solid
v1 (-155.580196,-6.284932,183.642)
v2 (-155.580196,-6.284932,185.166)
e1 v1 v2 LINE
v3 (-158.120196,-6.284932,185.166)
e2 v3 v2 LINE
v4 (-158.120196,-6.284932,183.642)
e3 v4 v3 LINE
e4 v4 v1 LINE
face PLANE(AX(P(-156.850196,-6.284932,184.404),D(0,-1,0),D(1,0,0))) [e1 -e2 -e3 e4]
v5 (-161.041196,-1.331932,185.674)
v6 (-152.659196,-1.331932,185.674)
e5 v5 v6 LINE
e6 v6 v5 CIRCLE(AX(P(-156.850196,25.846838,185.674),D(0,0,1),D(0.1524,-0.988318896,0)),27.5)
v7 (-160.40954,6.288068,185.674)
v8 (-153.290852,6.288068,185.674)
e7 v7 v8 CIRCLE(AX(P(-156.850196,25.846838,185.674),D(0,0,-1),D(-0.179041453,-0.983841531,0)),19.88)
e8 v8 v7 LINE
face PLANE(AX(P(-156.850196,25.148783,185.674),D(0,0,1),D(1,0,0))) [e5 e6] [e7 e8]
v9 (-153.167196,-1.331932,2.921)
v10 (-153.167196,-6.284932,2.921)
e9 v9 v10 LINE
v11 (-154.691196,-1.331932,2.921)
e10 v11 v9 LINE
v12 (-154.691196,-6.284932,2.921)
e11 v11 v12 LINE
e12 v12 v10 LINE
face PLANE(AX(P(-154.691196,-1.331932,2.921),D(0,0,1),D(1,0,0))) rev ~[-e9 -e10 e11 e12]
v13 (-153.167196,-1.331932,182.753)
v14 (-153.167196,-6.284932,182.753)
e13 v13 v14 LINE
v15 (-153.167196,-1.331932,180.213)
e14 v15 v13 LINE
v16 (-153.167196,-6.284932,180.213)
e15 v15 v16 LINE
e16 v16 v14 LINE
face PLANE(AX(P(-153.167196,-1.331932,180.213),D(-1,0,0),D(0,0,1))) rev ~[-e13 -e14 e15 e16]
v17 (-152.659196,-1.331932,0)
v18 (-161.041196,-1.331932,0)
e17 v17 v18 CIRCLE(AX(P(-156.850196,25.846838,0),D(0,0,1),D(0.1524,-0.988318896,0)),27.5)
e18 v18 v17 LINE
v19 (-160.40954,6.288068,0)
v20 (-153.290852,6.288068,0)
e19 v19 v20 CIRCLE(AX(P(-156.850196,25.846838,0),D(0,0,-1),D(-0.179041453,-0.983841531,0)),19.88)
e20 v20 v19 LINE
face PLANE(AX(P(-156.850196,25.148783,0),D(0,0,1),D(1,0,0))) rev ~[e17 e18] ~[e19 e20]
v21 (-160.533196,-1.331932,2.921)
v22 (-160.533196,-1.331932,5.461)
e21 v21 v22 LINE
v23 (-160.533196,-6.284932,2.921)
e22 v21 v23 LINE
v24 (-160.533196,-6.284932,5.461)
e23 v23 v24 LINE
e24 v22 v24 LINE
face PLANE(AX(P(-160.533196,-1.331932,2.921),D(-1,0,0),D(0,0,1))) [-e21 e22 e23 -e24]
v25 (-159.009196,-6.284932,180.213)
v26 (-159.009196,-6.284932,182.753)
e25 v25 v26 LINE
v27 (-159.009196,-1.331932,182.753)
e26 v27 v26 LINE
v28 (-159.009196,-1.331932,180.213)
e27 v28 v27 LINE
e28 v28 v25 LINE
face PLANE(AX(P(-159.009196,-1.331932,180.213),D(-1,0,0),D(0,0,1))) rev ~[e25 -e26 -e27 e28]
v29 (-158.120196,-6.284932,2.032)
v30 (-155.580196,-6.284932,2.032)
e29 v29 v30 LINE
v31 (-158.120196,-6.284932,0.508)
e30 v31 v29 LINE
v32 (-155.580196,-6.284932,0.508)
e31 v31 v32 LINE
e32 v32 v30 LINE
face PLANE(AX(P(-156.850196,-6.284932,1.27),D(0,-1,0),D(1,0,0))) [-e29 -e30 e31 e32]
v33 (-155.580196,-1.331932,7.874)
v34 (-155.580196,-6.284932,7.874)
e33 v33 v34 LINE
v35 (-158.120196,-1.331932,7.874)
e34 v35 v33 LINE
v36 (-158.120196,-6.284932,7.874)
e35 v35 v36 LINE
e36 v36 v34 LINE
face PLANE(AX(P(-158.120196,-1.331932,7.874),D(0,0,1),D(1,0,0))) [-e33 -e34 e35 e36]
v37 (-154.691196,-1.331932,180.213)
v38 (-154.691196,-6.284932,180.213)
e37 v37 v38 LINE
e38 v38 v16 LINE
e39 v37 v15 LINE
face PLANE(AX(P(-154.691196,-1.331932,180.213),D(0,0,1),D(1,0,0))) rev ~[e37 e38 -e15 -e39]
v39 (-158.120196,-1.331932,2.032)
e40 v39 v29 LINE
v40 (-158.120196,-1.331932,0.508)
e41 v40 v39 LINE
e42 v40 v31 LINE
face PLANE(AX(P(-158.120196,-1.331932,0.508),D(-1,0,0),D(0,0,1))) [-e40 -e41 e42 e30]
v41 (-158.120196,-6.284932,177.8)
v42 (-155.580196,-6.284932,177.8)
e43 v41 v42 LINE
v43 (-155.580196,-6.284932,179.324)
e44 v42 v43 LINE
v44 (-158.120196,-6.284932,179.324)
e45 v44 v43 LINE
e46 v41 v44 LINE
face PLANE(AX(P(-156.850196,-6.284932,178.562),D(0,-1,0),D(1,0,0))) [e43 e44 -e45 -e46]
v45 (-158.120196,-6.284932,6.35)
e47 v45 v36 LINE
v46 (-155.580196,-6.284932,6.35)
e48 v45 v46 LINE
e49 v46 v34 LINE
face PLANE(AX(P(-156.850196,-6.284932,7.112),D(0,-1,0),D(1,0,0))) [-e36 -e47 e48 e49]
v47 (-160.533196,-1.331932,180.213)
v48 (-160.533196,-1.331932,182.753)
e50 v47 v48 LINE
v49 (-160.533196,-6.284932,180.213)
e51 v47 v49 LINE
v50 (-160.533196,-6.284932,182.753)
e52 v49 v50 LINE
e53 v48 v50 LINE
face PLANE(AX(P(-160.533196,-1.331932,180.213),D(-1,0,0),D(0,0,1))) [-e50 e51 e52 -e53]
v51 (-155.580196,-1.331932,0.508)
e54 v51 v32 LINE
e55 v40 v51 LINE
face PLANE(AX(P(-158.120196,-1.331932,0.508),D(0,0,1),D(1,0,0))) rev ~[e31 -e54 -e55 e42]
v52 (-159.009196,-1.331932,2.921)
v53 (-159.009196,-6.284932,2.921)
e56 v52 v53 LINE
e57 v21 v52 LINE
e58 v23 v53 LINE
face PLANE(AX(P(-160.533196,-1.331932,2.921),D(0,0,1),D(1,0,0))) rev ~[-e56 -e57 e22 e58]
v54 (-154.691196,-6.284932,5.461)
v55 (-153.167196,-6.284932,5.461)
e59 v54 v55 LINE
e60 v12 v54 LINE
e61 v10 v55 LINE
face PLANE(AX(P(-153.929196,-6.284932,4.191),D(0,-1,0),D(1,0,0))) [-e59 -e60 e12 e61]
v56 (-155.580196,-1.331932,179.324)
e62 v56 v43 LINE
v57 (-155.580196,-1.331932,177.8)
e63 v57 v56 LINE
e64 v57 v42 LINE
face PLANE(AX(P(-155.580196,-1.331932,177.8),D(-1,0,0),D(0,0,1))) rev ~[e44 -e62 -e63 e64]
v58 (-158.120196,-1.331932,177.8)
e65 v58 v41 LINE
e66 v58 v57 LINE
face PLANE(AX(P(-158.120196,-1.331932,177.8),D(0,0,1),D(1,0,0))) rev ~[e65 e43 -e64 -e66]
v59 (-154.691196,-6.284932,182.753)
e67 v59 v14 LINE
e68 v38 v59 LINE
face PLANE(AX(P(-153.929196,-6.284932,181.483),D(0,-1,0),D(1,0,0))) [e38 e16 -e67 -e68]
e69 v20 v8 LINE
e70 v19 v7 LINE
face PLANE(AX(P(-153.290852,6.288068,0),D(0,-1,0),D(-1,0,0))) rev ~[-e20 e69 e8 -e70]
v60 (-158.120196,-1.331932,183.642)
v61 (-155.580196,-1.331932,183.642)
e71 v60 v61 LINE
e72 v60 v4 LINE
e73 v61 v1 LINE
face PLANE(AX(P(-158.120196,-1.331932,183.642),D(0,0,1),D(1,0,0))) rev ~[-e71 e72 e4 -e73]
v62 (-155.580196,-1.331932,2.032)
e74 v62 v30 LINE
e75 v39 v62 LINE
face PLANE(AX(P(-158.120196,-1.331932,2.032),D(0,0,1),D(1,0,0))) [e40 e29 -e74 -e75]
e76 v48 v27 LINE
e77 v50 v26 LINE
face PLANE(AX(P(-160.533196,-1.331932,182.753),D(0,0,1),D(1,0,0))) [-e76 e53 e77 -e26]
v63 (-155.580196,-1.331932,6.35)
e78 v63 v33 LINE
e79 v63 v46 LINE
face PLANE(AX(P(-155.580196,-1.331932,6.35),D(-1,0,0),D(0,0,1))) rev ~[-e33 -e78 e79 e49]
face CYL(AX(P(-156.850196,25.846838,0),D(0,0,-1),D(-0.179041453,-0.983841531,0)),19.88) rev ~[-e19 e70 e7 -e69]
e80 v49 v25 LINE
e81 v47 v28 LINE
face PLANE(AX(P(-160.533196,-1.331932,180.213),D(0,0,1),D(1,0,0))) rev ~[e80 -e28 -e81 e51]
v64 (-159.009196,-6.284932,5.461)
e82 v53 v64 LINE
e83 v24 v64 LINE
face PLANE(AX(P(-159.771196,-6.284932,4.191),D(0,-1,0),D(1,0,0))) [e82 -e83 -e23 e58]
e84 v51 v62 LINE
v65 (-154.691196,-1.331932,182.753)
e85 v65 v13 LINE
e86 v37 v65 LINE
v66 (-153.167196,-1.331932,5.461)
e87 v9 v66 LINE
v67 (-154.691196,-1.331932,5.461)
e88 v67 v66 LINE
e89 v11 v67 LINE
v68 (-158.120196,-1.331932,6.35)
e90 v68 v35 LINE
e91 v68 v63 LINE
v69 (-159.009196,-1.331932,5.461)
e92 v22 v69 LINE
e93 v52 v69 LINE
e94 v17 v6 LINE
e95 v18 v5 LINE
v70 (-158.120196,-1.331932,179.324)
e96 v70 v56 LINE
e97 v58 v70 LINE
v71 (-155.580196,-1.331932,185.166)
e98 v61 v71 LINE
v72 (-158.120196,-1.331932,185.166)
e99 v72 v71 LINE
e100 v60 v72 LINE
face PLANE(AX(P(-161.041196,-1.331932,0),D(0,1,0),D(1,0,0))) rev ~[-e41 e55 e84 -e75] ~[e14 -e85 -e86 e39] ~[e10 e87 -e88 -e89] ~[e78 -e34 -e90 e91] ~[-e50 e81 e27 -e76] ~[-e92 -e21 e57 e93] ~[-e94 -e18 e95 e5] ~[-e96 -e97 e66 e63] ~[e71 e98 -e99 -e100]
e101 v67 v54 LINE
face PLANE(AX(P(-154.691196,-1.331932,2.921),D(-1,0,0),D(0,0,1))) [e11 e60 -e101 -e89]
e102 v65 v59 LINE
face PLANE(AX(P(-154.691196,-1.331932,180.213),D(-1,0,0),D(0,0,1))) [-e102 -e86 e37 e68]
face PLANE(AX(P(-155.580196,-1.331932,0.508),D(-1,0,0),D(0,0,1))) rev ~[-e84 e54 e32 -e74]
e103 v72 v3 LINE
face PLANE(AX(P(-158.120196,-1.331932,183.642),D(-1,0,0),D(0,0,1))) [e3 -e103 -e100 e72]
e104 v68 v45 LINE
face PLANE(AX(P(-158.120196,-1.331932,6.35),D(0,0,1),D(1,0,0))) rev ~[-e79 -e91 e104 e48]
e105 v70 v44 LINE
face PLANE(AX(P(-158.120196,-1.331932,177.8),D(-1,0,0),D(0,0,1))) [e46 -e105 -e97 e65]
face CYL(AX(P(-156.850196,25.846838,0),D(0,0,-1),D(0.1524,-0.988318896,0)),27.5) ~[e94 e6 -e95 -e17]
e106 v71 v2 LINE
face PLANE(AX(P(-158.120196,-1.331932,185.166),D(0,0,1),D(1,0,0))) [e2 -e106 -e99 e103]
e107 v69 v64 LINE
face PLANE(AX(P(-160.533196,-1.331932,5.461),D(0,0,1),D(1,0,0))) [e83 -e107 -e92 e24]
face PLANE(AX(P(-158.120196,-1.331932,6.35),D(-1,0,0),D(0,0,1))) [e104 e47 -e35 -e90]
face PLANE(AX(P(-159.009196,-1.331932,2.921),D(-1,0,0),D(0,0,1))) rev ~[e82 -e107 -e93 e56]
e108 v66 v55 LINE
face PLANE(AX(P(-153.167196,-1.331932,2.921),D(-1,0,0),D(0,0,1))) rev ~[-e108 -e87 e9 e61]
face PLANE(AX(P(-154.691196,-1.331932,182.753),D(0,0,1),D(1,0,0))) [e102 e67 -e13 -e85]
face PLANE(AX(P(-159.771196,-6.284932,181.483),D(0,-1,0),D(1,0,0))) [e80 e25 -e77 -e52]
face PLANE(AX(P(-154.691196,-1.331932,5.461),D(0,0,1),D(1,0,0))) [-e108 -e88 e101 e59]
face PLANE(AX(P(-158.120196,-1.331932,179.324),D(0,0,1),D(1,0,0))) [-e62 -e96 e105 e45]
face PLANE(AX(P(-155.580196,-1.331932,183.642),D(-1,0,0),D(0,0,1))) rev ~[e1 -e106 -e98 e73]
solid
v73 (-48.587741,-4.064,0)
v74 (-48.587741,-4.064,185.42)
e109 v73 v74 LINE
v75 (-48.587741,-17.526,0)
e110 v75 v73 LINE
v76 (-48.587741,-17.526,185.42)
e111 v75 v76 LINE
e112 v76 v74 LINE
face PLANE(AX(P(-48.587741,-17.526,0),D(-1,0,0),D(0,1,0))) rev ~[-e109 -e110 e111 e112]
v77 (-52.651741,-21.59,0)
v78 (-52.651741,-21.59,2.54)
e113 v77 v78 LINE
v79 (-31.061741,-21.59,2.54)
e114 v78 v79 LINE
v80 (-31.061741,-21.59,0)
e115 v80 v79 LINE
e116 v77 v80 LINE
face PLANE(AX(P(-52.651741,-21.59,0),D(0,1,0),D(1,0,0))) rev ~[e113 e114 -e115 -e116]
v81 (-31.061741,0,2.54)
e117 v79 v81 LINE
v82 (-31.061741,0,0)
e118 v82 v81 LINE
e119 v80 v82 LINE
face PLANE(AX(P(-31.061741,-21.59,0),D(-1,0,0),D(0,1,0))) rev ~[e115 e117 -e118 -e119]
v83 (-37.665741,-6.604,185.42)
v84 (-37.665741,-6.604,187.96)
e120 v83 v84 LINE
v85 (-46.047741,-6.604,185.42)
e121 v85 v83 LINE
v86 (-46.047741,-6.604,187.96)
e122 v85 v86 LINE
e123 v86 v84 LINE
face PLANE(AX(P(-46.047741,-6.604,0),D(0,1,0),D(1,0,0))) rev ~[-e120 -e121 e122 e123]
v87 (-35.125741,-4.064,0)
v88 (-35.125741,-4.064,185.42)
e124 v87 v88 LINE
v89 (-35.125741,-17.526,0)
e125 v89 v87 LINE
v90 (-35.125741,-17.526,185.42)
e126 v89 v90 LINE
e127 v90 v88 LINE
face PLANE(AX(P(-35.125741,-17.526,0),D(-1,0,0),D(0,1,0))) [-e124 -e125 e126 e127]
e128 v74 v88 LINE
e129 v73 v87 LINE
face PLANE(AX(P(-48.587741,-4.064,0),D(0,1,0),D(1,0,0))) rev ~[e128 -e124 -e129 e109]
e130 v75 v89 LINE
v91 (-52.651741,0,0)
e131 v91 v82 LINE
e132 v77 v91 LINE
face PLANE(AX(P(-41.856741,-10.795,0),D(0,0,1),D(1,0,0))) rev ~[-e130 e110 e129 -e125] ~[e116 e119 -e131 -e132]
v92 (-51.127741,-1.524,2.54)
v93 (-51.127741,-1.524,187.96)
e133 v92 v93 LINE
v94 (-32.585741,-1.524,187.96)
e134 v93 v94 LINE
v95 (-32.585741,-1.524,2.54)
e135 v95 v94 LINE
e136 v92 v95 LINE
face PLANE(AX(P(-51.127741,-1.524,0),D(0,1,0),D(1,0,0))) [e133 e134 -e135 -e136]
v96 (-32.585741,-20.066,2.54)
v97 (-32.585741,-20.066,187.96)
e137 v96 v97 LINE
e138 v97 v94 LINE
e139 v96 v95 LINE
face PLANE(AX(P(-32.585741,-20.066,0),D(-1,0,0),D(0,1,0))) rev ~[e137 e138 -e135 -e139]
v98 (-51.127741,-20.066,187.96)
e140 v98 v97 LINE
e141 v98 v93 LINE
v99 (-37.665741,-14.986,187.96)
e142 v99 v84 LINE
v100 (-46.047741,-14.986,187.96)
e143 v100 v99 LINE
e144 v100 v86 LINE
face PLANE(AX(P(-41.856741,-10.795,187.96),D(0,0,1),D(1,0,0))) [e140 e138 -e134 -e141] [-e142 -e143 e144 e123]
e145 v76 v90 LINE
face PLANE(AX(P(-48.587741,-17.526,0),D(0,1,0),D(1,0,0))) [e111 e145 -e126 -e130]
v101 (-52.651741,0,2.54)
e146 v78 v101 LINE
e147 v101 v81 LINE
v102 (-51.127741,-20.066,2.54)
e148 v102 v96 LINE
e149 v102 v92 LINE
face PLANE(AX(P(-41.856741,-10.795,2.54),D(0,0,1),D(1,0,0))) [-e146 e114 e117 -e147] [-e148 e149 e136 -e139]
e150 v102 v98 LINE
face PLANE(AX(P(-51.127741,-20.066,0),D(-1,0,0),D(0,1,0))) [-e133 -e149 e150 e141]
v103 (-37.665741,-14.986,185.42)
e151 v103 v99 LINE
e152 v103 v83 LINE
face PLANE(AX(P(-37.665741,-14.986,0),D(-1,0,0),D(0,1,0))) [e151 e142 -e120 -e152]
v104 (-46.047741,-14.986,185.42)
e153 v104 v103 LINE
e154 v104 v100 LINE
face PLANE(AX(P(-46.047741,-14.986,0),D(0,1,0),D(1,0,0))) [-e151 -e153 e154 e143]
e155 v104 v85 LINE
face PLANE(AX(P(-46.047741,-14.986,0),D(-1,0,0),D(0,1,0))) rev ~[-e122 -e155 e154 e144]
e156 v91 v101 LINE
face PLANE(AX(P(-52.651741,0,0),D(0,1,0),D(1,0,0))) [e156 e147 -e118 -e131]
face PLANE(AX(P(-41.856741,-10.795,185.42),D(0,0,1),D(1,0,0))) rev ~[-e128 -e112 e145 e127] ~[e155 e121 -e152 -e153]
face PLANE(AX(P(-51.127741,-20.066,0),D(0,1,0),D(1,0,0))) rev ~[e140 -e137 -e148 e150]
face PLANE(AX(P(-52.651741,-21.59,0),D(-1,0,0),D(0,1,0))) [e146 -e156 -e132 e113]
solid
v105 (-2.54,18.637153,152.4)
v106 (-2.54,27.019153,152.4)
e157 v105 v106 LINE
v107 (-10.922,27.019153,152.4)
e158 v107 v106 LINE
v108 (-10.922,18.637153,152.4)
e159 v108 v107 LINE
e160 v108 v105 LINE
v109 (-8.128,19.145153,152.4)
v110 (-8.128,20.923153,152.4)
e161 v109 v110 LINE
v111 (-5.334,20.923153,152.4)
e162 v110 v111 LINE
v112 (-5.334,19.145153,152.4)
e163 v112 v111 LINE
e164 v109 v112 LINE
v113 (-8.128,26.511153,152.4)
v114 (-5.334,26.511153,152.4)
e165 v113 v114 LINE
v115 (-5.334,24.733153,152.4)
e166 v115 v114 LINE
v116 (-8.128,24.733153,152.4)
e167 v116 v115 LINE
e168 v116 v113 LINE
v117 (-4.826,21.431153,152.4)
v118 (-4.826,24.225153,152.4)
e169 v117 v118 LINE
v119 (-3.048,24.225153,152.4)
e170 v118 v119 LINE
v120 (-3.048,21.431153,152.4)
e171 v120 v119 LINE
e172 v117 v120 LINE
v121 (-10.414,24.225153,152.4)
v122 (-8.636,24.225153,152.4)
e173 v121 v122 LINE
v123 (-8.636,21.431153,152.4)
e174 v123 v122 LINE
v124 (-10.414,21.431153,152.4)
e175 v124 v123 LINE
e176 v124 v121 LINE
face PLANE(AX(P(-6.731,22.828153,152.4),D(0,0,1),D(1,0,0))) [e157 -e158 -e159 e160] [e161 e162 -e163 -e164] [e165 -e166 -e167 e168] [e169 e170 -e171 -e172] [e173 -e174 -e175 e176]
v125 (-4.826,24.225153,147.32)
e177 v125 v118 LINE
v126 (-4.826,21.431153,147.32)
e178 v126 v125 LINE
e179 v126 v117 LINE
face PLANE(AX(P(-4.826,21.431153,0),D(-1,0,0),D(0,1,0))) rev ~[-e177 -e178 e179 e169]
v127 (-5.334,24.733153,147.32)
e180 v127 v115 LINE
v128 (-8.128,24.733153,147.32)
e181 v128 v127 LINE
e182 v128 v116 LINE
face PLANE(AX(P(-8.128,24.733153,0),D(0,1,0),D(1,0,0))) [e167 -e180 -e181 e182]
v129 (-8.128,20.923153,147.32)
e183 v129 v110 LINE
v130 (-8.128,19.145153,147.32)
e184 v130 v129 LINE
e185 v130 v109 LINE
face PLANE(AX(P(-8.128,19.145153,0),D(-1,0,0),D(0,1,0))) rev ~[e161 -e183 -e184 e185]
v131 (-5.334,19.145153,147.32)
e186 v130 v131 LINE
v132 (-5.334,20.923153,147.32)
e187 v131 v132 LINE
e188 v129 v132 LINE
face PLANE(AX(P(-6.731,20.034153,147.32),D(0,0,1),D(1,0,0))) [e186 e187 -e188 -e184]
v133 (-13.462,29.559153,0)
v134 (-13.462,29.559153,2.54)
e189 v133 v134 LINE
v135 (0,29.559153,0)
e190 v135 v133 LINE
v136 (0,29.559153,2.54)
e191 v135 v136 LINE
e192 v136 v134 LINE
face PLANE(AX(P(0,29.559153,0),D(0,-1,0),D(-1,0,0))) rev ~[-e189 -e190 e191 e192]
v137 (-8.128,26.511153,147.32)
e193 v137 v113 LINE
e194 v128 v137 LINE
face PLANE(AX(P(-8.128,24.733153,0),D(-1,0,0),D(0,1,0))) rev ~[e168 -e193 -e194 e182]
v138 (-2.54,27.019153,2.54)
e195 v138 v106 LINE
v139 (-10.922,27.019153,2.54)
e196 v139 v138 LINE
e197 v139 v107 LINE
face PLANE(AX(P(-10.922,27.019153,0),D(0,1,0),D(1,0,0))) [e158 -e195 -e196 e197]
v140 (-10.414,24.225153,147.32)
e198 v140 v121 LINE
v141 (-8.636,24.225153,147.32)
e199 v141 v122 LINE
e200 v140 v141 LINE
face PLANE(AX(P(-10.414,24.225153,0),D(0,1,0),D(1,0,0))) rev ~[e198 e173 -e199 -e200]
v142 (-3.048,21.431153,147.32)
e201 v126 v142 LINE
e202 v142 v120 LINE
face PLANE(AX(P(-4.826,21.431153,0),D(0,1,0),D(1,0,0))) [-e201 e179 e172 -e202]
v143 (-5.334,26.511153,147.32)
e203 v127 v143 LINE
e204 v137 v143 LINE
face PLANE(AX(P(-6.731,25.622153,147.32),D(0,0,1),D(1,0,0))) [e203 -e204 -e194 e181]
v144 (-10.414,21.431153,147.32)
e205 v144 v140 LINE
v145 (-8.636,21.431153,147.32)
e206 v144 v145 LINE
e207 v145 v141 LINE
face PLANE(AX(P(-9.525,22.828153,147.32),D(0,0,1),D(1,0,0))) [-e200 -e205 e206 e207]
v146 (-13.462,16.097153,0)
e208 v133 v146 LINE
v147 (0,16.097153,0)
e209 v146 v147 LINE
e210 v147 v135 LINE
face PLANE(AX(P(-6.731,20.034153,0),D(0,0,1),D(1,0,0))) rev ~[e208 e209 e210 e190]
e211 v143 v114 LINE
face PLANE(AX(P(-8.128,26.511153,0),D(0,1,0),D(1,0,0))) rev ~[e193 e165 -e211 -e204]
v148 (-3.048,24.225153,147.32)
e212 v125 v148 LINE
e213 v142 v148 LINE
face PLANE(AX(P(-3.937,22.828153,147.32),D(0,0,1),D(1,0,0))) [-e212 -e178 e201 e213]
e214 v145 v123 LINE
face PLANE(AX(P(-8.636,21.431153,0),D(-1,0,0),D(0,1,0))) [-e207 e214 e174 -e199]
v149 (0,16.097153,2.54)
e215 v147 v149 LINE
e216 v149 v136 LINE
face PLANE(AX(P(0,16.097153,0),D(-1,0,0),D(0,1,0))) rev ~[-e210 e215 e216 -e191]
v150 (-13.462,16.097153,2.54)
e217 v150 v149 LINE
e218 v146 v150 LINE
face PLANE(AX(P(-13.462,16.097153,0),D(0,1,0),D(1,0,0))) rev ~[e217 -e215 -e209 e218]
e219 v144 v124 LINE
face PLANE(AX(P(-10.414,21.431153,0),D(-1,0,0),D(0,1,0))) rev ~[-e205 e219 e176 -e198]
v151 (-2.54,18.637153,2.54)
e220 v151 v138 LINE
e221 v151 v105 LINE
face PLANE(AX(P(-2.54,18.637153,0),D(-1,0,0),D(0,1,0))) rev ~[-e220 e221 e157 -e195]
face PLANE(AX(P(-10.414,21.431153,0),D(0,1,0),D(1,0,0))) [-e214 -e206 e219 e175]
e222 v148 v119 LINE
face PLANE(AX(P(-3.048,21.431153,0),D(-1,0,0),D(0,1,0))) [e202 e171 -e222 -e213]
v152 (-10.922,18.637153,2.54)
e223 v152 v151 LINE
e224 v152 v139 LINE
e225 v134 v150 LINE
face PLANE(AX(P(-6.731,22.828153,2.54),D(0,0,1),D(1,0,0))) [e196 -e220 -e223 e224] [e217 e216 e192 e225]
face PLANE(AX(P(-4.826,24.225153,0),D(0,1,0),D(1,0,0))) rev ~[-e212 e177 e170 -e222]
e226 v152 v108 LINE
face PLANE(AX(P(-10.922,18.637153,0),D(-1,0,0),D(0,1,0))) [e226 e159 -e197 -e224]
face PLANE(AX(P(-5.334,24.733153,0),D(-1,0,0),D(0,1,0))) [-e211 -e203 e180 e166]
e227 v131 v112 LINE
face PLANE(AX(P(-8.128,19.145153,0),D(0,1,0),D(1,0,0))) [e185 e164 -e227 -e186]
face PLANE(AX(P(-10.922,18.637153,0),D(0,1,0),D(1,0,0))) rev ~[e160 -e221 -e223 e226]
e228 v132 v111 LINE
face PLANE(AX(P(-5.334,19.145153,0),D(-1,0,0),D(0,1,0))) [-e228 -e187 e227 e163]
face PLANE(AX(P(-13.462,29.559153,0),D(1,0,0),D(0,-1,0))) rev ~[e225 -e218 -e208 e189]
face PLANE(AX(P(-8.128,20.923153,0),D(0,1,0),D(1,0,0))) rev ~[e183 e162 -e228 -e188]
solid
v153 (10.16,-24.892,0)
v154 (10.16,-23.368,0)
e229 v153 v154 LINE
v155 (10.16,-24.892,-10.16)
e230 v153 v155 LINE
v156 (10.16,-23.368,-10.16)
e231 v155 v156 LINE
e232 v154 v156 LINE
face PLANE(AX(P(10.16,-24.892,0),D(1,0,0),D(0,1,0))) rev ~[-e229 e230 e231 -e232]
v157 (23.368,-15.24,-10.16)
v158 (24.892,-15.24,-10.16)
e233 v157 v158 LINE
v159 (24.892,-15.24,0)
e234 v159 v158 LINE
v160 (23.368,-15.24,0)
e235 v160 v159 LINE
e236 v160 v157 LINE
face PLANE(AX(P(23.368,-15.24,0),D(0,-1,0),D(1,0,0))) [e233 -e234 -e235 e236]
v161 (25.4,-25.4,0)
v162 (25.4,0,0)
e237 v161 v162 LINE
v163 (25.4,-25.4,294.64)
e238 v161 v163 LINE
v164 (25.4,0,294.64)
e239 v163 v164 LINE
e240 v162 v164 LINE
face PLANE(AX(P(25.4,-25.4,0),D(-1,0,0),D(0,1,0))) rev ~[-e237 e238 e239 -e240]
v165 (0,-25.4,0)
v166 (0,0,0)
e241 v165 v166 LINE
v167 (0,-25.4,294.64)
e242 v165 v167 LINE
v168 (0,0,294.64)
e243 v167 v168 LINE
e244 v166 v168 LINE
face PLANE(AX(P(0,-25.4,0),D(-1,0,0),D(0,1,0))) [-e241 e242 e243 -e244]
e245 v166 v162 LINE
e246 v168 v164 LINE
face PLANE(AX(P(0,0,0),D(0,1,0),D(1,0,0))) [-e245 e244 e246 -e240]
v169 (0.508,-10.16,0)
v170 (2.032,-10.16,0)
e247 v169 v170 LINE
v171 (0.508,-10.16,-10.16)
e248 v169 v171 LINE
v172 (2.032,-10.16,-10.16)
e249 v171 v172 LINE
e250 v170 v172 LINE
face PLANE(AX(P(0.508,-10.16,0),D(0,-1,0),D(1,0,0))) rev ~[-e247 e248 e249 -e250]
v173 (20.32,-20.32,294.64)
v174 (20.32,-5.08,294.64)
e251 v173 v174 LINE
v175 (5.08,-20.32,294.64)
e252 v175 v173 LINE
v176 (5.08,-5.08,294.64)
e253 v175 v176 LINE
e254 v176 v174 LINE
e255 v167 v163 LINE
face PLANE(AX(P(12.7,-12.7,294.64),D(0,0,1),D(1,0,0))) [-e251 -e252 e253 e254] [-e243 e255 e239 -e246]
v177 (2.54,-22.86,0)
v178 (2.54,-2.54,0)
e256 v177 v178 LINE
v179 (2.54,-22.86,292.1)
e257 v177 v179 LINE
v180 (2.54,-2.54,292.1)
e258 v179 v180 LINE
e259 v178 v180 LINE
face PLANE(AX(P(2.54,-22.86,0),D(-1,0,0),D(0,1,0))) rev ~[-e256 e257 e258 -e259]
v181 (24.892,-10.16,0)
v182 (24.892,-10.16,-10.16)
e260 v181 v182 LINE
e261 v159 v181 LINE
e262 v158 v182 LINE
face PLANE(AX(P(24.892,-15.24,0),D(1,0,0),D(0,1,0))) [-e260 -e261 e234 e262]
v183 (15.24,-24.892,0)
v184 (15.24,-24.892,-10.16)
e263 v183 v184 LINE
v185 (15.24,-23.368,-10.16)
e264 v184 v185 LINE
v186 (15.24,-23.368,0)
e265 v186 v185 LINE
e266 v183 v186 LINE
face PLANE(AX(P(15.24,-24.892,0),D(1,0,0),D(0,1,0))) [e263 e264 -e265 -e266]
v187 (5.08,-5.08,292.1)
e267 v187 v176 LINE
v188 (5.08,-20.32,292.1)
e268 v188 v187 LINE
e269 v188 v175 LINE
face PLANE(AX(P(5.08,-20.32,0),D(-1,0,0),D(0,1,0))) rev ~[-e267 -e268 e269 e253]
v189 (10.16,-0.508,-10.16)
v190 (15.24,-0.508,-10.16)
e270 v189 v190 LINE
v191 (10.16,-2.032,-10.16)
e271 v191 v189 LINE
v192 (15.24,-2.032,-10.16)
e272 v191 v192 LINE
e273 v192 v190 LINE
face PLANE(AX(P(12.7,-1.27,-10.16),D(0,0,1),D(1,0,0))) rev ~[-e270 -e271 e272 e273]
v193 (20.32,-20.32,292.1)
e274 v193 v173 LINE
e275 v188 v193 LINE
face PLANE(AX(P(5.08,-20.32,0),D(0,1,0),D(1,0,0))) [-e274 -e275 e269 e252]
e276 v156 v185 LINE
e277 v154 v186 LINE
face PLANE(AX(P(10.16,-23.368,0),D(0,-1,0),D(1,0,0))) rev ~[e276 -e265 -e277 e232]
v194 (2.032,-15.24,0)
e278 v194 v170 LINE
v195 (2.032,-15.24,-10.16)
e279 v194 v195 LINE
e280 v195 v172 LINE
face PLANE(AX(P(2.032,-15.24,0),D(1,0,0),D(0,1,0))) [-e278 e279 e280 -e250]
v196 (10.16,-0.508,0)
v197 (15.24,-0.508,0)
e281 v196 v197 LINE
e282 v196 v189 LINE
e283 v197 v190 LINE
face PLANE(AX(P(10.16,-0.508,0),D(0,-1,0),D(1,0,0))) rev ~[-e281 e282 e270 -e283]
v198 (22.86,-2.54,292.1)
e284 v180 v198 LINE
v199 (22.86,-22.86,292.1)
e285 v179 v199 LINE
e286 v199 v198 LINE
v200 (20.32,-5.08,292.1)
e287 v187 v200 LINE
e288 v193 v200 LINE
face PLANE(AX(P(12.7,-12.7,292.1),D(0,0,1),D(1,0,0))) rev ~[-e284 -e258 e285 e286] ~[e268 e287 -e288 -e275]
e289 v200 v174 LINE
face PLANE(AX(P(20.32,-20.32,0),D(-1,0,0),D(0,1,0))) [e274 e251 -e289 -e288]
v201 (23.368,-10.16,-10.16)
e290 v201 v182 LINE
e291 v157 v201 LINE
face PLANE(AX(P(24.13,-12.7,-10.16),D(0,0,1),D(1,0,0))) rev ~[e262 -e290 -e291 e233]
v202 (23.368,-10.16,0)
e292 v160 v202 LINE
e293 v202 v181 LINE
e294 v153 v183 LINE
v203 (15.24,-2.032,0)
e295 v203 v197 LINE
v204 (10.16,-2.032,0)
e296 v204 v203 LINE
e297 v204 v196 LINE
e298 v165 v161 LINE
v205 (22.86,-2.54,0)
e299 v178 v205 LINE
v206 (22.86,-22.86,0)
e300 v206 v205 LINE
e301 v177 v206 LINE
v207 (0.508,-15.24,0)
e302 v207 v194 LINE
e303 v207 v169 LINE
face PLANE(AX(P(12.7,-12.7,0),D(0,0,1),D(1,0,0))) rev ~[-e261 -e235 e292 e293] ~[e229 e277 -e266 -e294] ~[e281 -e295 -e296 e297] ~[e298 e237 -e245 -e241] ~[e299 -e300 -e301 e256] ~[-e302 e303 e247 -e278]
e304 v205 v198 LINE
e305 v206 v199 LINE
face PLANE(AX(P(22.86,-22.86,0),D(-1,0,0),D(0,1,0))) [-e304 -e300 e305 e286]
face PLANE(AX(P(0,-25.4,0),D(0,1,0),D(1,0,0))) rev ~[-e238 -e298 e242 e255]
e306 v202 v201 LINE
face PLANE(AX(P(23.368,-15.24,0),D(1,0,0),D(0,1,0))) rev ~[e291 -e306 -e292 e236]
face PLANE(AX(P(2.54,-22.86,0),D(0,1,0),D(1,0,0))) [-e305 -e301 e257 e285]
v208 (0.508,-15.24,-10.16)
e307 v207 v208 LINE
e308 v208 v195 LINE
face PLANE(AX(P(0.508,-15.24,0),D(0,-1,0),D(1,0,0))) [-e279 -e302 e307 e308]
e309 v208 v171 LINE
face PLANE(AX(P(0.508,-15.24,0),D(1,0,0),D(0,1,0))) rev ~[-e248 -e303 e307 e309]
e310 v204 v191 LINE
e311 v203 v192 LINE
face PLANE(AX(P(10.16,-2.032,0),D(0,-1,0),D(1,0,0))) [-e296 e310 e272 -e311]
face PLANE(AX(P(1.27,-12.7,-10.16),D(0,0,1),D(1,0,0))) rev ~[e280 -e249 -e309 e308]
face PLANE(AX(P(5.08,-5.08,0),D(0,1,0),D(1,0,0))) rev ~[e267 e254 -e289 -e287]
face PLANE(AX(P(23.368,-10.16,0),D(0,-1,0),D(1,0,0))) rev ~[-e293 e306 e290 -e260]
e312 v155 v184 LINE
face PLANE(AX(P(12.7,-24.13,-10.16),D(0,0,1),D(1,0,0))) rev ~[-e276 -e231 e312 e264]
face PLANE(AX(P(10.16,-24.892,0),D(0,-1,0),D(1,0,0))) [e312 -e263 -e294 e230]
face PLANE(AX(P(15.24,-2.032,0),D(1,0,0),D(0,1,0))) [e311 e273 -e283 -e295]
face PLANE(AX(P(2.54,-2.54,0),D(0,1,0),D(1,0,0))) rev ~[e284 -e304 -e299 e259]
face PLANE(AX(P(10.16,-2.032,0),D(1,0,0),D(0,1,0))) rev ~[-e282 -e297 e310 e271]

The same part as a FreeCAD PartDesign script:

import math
import FreeCAD as App
import Part
import Sketcher

V = App.Vector
Q = App.Units.Quantity


def add_polygon(sketch, points):
    """Adds a closed chain of lines whose ends are joined by coincident constraints."""
    first, n = sketch.GeometryCount, len(points)
    for a, b in zip(points, points[1:] + points[:1]):
        sketch.addGeometry(Part.LineSegment(App.Vector(*a, 0), App.Vector(*b, 0)), False)
    for i in range(n):
        sketch.addConstraint(Sketcher.Constraint("Coincident", first + i, 2, first + (i + 1) % n, 1))

doc = App.newDocument("Part")
body = doc.addObject("PartDesign::Body", "Body")

sketch1 = body.newObject("Sketcher::SketchObject", "Sketch")
sketch1.AttachmentSupport = (doc.getObject("XY_Plane"), [""])
sketch1.MapMode = "FlatFace"
add_polygon(sketch1, [(0, 0), (0, -25), (25, -25), (25, 0)])
add_polygon(sketch1, [(20, -20), (5, -20), (5, -5), (20, -5)])
sketch1.addConstraint([
    Sketcher.Constraint("Vertical", 0),
    Sketcher.Constraint("Horizontal", 1),
    Sketcher.Constraint("Vertical", 2),
    Sketcher.Constraint("Horizontal", 3),
    Sketcher.Constraint("Horizontal", 4),
    Sketcher.Constraint("Vertical", 5),
    Sketcher.Constraint("Horizontal", 6),
    Sketcher.Constraint("Vertical", 7),
    Sketcher.Constraint("Coincident", 3, 2, -1, 1),
    Sketcher.Constraint("Equal", 3, 0),
    Sketcher.Constraint("Equal", 6, 5),
    Sketcher.Constraint("DistanceX", 1, 1, 1, 2, Q("1 in")),
    Sketcher.Constraint("DistanceX", 4, 2, 4, 1, Q("0.6 in")),
    Sketcher.Constraint("DistanceX", -1, 1, 4, 2, Q("0.2 in")),
    Sketcher.Constraint("DistanceY", 4, 2, -1, 1, Q("0.8 in")),
])
pad1 = body.newObject("PartDesign::Pad", "Pad")
pad1.Profile = sketch1
pad1.Length = Q("11.6 in")

sketch2 = body.newObject("Sketcher::SketchObject", "Sketch001")
sketch2.AttachmentSupport = (doc.getObject("XY_Plane"), [""])
sketch2.MapMode = "FlatFace"
add_polygon(sketch2, [(3, -3), (3, -23), (23, -23), (23, -3)])
add_polygon(sketch2, [(20, -20), (5, -20), (5, -5), (20, -5)])
sketch2.addConstraint([
    Sketcher.Constraint("Vertical", 0),
    Sketcher.Constraint("Horizontal", 1),
    Sketcher.Constraint("Vertical", 2),
    Sketcher.Constraint("Horizontal", 3),
    Sketcher.Constraint("Horizontal", 4),
    Sketcher.Constraint("Vertical", 5),
    Sketcher.Constraint("Horizontal", 6),
    Sketcher.Constraint("Vertical", 7),
    Sketcher.Constraint("Equal", 3, 0),
    Sketcher.Constraint("Equal", 6, 5),
    Sketcher.Constraint("DistanceX", 1, 1, 1, 2, Q("0.8 in")),
    Sketcher.Constraint("DistanceX", 4, 2, 4, 1, Q("0.6 in")),
    Sketcher.Constraint("DistanceX", -1, 1, 0, 2, Q("0.1 in")),
    Sketcher.Constraint("DistanceY", 0, 2, -1, 1, Q("0.9 in")),
    Sketcher.Constraint("DistanceX", -1, 1, 4, 2, Q("0.2 in")),
    Sketcher.Constraint("DistanceY", 4, 2, -1, 1, Q("0.8 in")),
])
pocket1 = body.newObject("PartDesign::Pocket", "Pocket")
pocket1.Profile = sketch2
pocket1.Length = Q("11.5 in")
pocket1.Reversed = True

sketch3 = body.newObject("Sketcher::SketchObject", "Sketch002")
sketch3.AttachmentSupport = (doc.getObject("XY_Plane"), [""])
sketch3.MapMode = "FlatFace"
add_polygon(sketch3, [(0.5, -10.2), (0.5, -15.2), (2, -15.2), (2, -10.2)])
add_polygon(sketch3, [(10.2, -23.4), (10.2, -24.9), (15.2, -24.9), (15.2, -23.4)])
add_polygon(sketch3, [(10.2, -0.5), (10.2, -2), (15.2, -2), (15.2, -0.5)])
add_polygon(sketch3, [(23.4, -10.2), (23.4, -15.2), (24.9, -15.2), (24.9, -10.2)])
sketch3.addConstraint([
    Sketcher.Constraint("Vertical", 0),
    Sketcher.Constraint("Horizontal", 1),
    Sketcher.Constraint("Vertical", 2),
    Sketcher.Constraint("Horizontal", 3),
    Sketcher.Constraint("Vertical", 4),
    Sketcher.Constraint("Horizontal", 5),
    Sketcher.Constraint("Vertical", 6),
    Sketcher.Constraint("Horizontal", 7),
    Sketcher.Constraint("Vertical", 8),
    Sketcher.Constraint("Horizontal", 9),
    Sketcher.Constraint("Vertical", 10),
    Sketcher.Constraint("Horizontal", 11),
    Sketcher.Constraint("Vertical", 12),
    Sketcher.Constraint("Horizontal", 13),
    Sketcher.Constraint("Vertical", 14),
    Sketcher.Constraint("Horizontal", 15),
    Sketcher.Constraint("Horizontal", 1, 2, 12, 2),
    Sketcher.Constraint("Horizontal", 3, 2, 14, 2),
    Sketcher.Constraint("Vertical", 7, 2, 8, 2),
    Sketcher.Constraint("Vertical", 6, 2, 9, 2),
    Sketcher.Constraint("Equal", 3, 13),
    Sketcher.Constraint("Equal", 11, 0),
    Sketcher.Constraint("Equal", 15, 4),
    Sketcher.Constraint("Equal", 6, 8),
    Sketcher.Constraint("DistanceX", 5, 1, 5, 2, Q("0.2 in")),
    Sketcher.Constraint("DistanceX", 1, 1, 1, 2, Q("0.06 in")),
    Sketcher.Constraint("DistanceY", 0, 2, -1, 1, Q("0.6 in")),
    Sketcher.Constraint("DistanceX", -1, 1, 4, 2, Q("0.4 in")),
    Sketcher.Constraint("DistanceX", -1, 1, 0, 2, Q("0.02 in")),
    Sketcher.Constraint("DistanceY", 4, 2, -1, 1, Q("0.98 in")),
    Sketcher.Constraint("DistanceY", 8, 2, -1, 1, Q("0.08 in")),
    Sketcher.Constraint("DistanceX", -1, 1, 12, 2, Q("0.92 in")),
])
pad2 = body.newObject("PartDesign::Pad", "Pad001")
pad2.Profile = sketch3
pad2.Length = Q("0.4 in")
pad2.Reversed = True
body2 = doc.addObject("PartDesign::Body", "Body001")

sketch4 = body2.newObject("Sketcher::SketchObject", "Sketch003")
sketch4.AttachmentSupport = (doc.getObject("XY_Plane001"), [""])
sketch4.MapMode = "FlatFace"
add_polygon(sketch4, [(-51, -2), (-51, -20), (-33, -20), (-33, -2)])
add_polygon(sketch4, [(-38, -15), (-46, -15), (-46, -7), (-38, -7)])
sketch4.addConstraint([
    Sketcher.Constraint("Vertical", 0),
    Sketcher.Constraint("Horizontal", 1),
    Sketcher.Constraint("Vertical", 2),
    Sketcher.Constraint("Horizontal", 3),
    Sketcher.Constraint("Horizontal", 4),
    Sketcher.Constraint("Vertical", 5),
    Sketcher.Constraint("Horizontal", 6),
    Sketcher.Constraint("Vertical", 7),
    Sketcher.Constraint("Equal", 3, 0),
    Sketcher.Constraint("Equal", 6, 5),
    Sketcher.Constraint("DistanceX", 1, 1, 1, 2, Q("0.73 in")),
    Sketcher.Constraint("DistanceX", 4, 2, 4, 1, Q("0.33 in")),
    Sketcher.Constraint("DistanceX", 0, 2, 4, 2, Q("0.2 in")),
    Sketcher.Constraint("DistanceY", 0, 2, 4, 2, Q("0.2 in")),
    Sketcher.Constraint("DistanceY", 0, 2, -1, 1, Q("0.79 in")),
    Sketcher.Constraint("DistanceX", 0, 2, -1, 1, Q("51.127741 mm")),
])
pad3 = body2.newObject("PartDesign::Pad", "Pad002")
pad3.Profile = sketch4
pad3.Length = Q("7.4 in")

sketch5 = body2.newObject("Sketcher::SketchObject", "Sketch004")
sketch5.AttachmentSupport = (doc.getObject("XY_Plane001"), [""])
sketch5.MapMode = "FlatFace"
add_polygon(sketch5, [(-49, -4), (-49, -18), (-35, -18), (-35, -4)])
add_polygon(sketch5, [(-38, -15), (-46, -15), (-46, -7), (-38, -7)])
sketch5.addConstraint([
    Sketcher.Constraint("Vertical", 0),
    Sketcher.Constraint("Horizontal", 1),
    Sketcher.Constraint("Vertical", 2),
    Sketcher.Constraint("Horizontal", 3),
    Sketcher.Constraint("Horizontal", 4),
    Sketcher.Constraint("Vertical", 5),
    Sketcher.Constraint("Horizontal", 6),
    Sketcher.Constraint("Vertical", 7),
    Sketcher.Constraint("Equal", 3, 0),
    Sketcher.Constraint("Equal", 6, 5),
    Sketcher.Constraint("DistanceX", 1, 1, 1, 2, Q("0.53 in")),
    Sketcher.Constraint("DistanceX", 4, 2, 4, 1, Q("0.33 in")),
    Sketcher.Constraint("DistanceX", 0, 2, 4, 2, Q("0.1 in")),
    Sketcher.Constraint("DistanceY", 0, 2, 4, 2, Q("0.1 in")),
    Sketcher.Constraint("DistanceY", 0, 2, -1, 1, Q("0.69 in")),
    Sketcher.Constraint("DistanceX", 0, 2, -1, 1, Q("48.587741 mm")),
])
pocket2 = body2.newObject("PartDesign::Pocket", "Pocket001")
pocket2.Profile = sketch5
pocket2.Length = Q("7.3 in")
pocket2.Reversed = True

sketch6 = body2.newObject("Sketcher::SketchObject", "Sketch005")
sketch6.AttachmentSupport = (doc.getObject("XY_Plane001"), [""])
sketch6.MapMode = "FlatFace"
add_polygon(sketch6, [(-53, 0), (-53, -22), (-31, -22), (-31, 0)])
add_polygon(sketch6, [(-33, -20), (-51, -20), (-51, -2), (-33, -2)])
sketch6.addConstraint([
    Sketcher.Constraint("Vertical", 0),
    Sketcher.Constraint("Horizontal", 1),
    Sketcher.Constraint("Vertical", 2),
    Sketcher.Constraint("Horizontal", 3),
    Sketcher.Constraint("Horizontal", 4),
    Sketcher.Constraint("Vertical", 5),
    Sketcher.Constraint("Horizontal", 6),
    Sketcher.Constraint("Vertical", 7),
    Sketcher.Constraint("PointOnObject", 2, 2, -1),
    Sketcher.Constraint("Equal", 3, 0),
    Sketcher.Constraint("Equal", 6, 5),
    Sketcher.Constraint("DistanceX", 1, 1, 1, 2, Q("0.85 in")),
    Sketcher.Constraint("DistanceX", 4, 2, 4, 1, Q("0.73 in")),
    Sketcher.Constraint("DistanceY", 4, 2, -1, 1, Q("0.79 in")),
    Sketcher.Constraint("DistanceX", 0, 2, 4, 2, Q("0.06 in")),
    Sketcher.Constraint("DistanceX", 0, 2, -1, 1, Q("52.651741 mm")),
])
pad4 = body2.newObject("PartDesign::Pad", "Pad003")
pad4.Profile = sketch6
pad4.Length = Q("0.1 in")
body3 = doc.addObject("PartDesign::Body", "Body002")

sketch7 = body3.newObject("Sketcher::SketchObject", "Sketch006")
sketch7.AttachmentSupport = (doc.getObject("XY_Plane002"), [""])
sketch7.MapMode = "FlatFace"
add_polygon(sketch7, [(0, 16), (0, 30), (-13, 30), (-13, 16)])
add_polygon(sketch7, [(-3, 19), (-11, 19), (-11, 27), (-3, 27)])
sketch7.addConstraint([
    Sketcher.Constraint("Vertical", 0),
    Sketcher.Constraint("Horizontal", 1),
    Sketcher.Constraint("Vertical", 2),
    Sketcher.Constraint("Horizontal", 3),
    Sketcher.Constraint("Horizontal", 4),
    Sketcher.Constraint("Vertical", 5),
    Sketcher.Constraint("Horizontal", 6),
    Sketcher.Constraint("Vertical", 7),
    Sketcher.Constraint("PointOnObject", 0, 2, -2),
    Sketcher.Constraint("Equal", 3, 0),
    Sketcher.Constraint("Equal", 6, 5),
    Sketcher.Constraint("DistanceX", 1, 2, 1, 1, Q("0.53 in")),
    Sketcher.Constraint("DistanceX", 4, 2, 4, 1, Q("0.33 in")),
    Sketcher.Constraint("DistanceX", 6, 2, -1, 1, Q("0.1 in")),
    Sketcher.Constraint("DistanceY", 2, 2, 4, 2, Q("0.1 in")),
    Sketcher.Constraint("DistanceY", -1, 1, 0, 2, Q("29.559153 mm")),
])
pad5 = body3.newObject("PartDesign::Pad", "Pad004")
pad5.Profile = sketch7
pad5.Length = Q("0.1 in")

sketch8 = body3.newObject("Sketcher::SketchObject", "Sketch007")
sketch8.AttachmentSupport = (doc.getObject("XY_Plane002"), [""])
sketch8.MapMode = "FlatFace"
add_polygon(sketch8, [(-10.9, 27), (-10.9, 18.6), (-2.5, 18.6), (-2.5, 27)])
add_polygon(sketch8, [(-5.3, 19.1), (-8.1, 19.1), (-8.1, 20.9), (-5.3, 20.9)])
add_polygon(sketch8, [(-8.6, 21.4), (-10.4, 21.4), (-10.4, 24.2), (-8.6, 24.2)])
add_polygon(sketch8, [(-3, 21.4), (-4.8, 21.4), (-4.8, 24.2), (-3, 24.2)])
add_polygon(sketch8, [(-5.3, 24.7), (-8.1, 24.7), (-8.1, 26.5), (-5.3, 26.5)])
sketch8.addConstraint([
    Sketcher.Constraint("Vertical", 0),
    Sketcher.Constraint("Horizontal", 1),
    Sketcher.Constraint("Vertical", 2),
    Sketcher.Constraint("Horizontal", 3),
    Sketcher.Constraint("Horizontal", 4),
    Sketcher.Constraint("Vertical", 5),
    Sketcher.Constraint("Horizontal", 6),
    Sketcher.Constraint("Vertical", 7),
    Sketcher.Constraint("Horizontal", 8),
    Sketcher.Constraint("Vertical", 9),
    Sketcher.Constraint("Horizontal", 10),
    Sketcher.Constraint("Vertical", 11),
    Sketcher.Constraint("Horizontal", 12),
    Sketcher.Constraint("Vertical", 13),
    Sketcher.Constraint("Horizontal", 14),
    Sketcher.Constraint("Vertical", 15),
    Sketcher.Constraint("Horizontal", 16),
    Sketcher.Constraint("Vertical", 17),
    Sketcher.Constraint("Horizontal", 18),
    Sketcher.Constraint("Vertical", 19),
    Sketcher.Constraint("Horizontal", 11, 2, 12, 2),
    Sketcher.Constraint("Horizontal", 10, 2, 13, 2),
    Sketcher.Constraint("Vertical", 5, 2, 16, 2),
    Sketcher.Constraint("Vertical", 7, 2, 18, 2),
    Sketcher.Constraint("Equal", 10, 12),
    Sketcher.Constraint("Equal", 3, 0),
    Sketcher.Constraint("Equal", 14, 5),
    Sketcher.Constraint("Equal", 18, 9),
    Sketcher.Constraint("Equal", 7, 17),
    Sketcher.Constraint("DistanceX", 1, 1, 1, 2, Q("0.33 in")),
    Sketcher.Constraint("DistanceX", 4, 2, 4, 1, Q("0.11 in")),
    Sketcher.Constraint("DistanceX", 8, 2, 8, 1, Q("0.07 in")),
    Sketcher.Constraint("DistanceX", 1, 2, -1, 1, Q("0.1 in")),
    Sketcher.Constraint("DistanceX", 8, 2, 6, 2, Q("0.2 in")),
    Sketcher.Constraint("DistanceY", 4, 2, 9, 2, Q("0.2 in")),
    Sketcher.Constraint("DistanceX", 4, 2, -1, 1, Q("0.32 in")),
    Sketcher.Constraint("DistanceX", 12, 2, -1, 1, Q("0.19 in")),
    Sketcher.Constraint("DistanceY", 0, 2, 4, 2, Q("0.02 in")),
    Sketcher.Constraint("DistanceY", 10, 2, 16, 2, Q("0.02 in")),
    Sketcher.Constraint("DistanceY", -1, 1, 0, 2, Q("18.637153 mm")),
])
pad6 = body3.newObject("PartDesign::Pad", "Pad005")
pad6.Profile = sketch8
pad6.Length = Q("6 in")

sketch9 = body3.newObject("Sketcher::SketchObject", "Sketch008")
sketch9.AttachmentSupport = (doc.getObject("XY_Plane002"), [""])
sketch9.MapMode = "FlatFace"
add_polygon(sketch9, [(-8.1, 20.9), (-8.1, 19.1), (-5.3, 19.1), (-5.3, 20.9)])
add_polygon(sketch9, [(-10.4, 24.2), (-10.4, 21.4), (-8.6, 21.4), (-8.6, 24.2)])
add_polygon(sketch9, [(-8.1, 26.5), (-8.1, 24.7), (-5.3, 24.7), (-5.3, 26.5)])
add_polygon(sketch9, [(-4.8, 24.2), (-4.8, 21.4), (-3, 21.4), (-3, 24.2)])
sketch9.addConstraint([
    Sketcher.Constraint("Vertical", 0),
    Sketcher.Constraint("Horizontal", 1),
    Sketcher.Constraint("Vertical", 2),
    Sketcher.Constraint("Horizontal", 3),
    Sketcher.Constraint("Vertical", 4),
    Sketcher.Constraint("Horizontal", 5),
    Sketcher.Constraint("Vertical", 6),
    Sketcher.Constraint("Horizontal", 7),
    Sketcher.Constraint("Vertical", 8),
    Sketcher.Constraint("Horizontal", 9),
    Sketcher.Constraint("Vertical", 10),
    Sketcher.Constraint("Horizontal", 11),
    Sketcher.Constraint("Vertical", 12),
    Sketcher.Constraint("Horizontal", 13),
    Sketcher.Constraint("Vertical", 14),
    Sketcher.Constraint("Horizontal", 15),
    Sketcher.Constraint("Horizontal", 5, 2, 12, 2),
    Sketcher.Constraint("Horizontal", 7, 2, 14, 2),
    Sketcher.Constraint("Vertical", 3, 2, 8, 2),
    Sketcher.Constraint("Vertical", 2, 2, 9, 2),
    Sketcher.Constraint("Equal", 7, 13),
    Sketcher.Constraint("Equal", 15, 0),
    Sketcher.Constraint("Equal", 11, 4),
    Sketcher.Constraint("Equal", 2, 8),
    Sketcher.Constraint("DistanceX", 1, 1, 1, 2, Q("0.11 in")),
    Sketcher.Constraint("DistanceX", 5, 1, 5, 2, Q("0.07 in")),
    Sketcher.Constraint("DistanceX", 4, 2, 2, 2, Q("0.2 in")),
    Sketcher.Constraint("DistanceY", 0, 2, 6, 2, Q("0.2 in")),
    Sketcher.Constraint("DistanceX", 3, 2, 13, 2, Q("0.2 in")),
    Sketcher.Constraint("DistanceX", 0, 2, -1, 1, Q("0.32 in")),
    Sketcher.Constraint("DistanceY", 6, 2, 8, 2, Q("0.02 in")),
    Sketcher.Constraint("DistanceY", -1, 1, 0, 2, Q("19.145153 mm")),
])
pad7 = body3.newObject("PartDesign::Pad", "Pad006")
pad7.Profile = sketch9
pad7.Length = Q("5.8 in")
body4 = doc.addObject("PartDesign::Body", "Body003")

sketch10 = body4.newObject("Sketcher::SketchObject", "Sketch009")
sketch10.AttachmentSupport = (doc.getObject("XY_Plane003"), [""])
sketch10.MapMode = "FlatFace"
sketch10.addGeometry([
    Part.LineSegment(V(-161, -1, 0), V(-153, -1, 0)),
    Part.ArcOfCircle(Part.Circle(V(-157, 26, 0), V(0, 0, 1), 28), math.radians(-81), math.radians(261)),
    Part.LineSegment(V(-153, 6, 0), V(-160, 6, 0)),
    Part.ArcOfCircle(Part.Circle(V(-157, 26, 0), V(0, 0, 1), 20), math.radians(-80), math.radians(260)),
], False)
sketch10.addConstraint([
    Sketcher.Constraint("Coincident", 0, 1, 1, 2),
    Sketcher.Constraint("Coincident", 1, 1, 0, 2),
    Sketcher.Constraint("Coincident", 2, 1, 3, 1),
    Sketcher.Constraint("Coincident", 3, 2, 2, 2),
    Sketcher.Constraint("Horizontal", 0),
    Sketcher.Constraint("Horizontal", 2),
    Sketcher.Constraint("Coincident", 3, 3, 1, 3),
    Sketcher.Constraint("DistanceX", 0, 1, 0, 2, Q("0.33 in")),
    Sketcher.Constraint("DistanceY", 1, 1, 2, 1, Q("0.3 in")),
    Sketcher.Constraint("Radius", 1, Q("27.5 mm")),
    Sketcher.Constraint("Radius", 3, Q("19.88 mm")),
    Sketcher.Constraint("DistanceY", 0, 1, -1, 1, Q("1.331932 mm")),
    Sketcher.Constraint("DistanceX", 2, 1, -1, 1, Q("153.290852 mm")),
])
pad8 = body4.newObject("PartDesign::Pad", "Pad007")
pad8.Profile = sketch10
pad8.Length = Q("7.31 in")

sketch11 = body4.newObject("Sketcher::SketchObject", "Sketch010")
sketch11.AttachmentSupport = (doc.getObject("XZ_Plane003"), [""])
sketch11.MapMode = "FlatFace"
sketch11.AttachmentOffset = App.Placement(V(0, 0, 1.331932), App.Rotation())
add_polygon(sketch11, [(-160.5, 182.8), (-160.5, 180.2), (-159, 180.2), (-159, 182.8)])
add_polygon(sketch11, [(-158.1, 185.2), (-158.1, 183.6), (-155.6, 183.6), (-155.6, 185.2)])
add_polygon(sketch11, [(-154.7, 182.8), (-154.7, 180.2), (-153.2, 180.2), (-153.2, 182.8)])
add_polygon(sketch11, [(-158.1, 179.3), (-158.1, 177.8), (-155.6, 177.8), (-155.6, 179.3)])
add_polygon(sketch11, [(-160.5, 5.5), (-160.5, 2.9), (-159, 2.9), (-159, 5.5)])
add_polygon(sketch11, [(-158.1, 7.9), (-158.1, 6.3), (-155.6, 6.3), (-155.6, 7.9)])
add_polygon(sketch11, [(-154.7, 5.5), (-154.7, 2.9), (-153.2, 2.9), (-153.2, 5.5)])
add_polygon(sketch11, [(-158.1, 2), (-158.1, 0.5), (-155.6, 0.5), (-155.6, 2)])
sketch11.addConstraint([
    Sketcher.Constraint("Vertical", 0),
    Sketcher.Constraint("Horizontal", 1),
    Sketcher.Constraint("Vertical", 2),
    Sketcher.Constraint("Horizontal", 3),
    Sketcher.Constraint("Vertical", 4),
    Sketcher.Constraint("Horizontal", 5),
    Sketcher.Constraint("Vertical", 6),
    Sketcher.Constraint("Horizontal", 7),
    Sketcher.Constraint("Vertical", 8),
    Sketcher.Constraint("Horizontal", 9),
    Sketcher.Constraint("Vertical", 10),
    Sketcher.Constraint("Horizontal", 11),
    Sketcher.Constraint("Vertical", 12),
    Sketcher.Constraint("Horizontal", 13),
    Sketcher.Constraint("Vertical", 14),
    Sketcher.Constraint("Horizontal", 15),
    Sketcher.Constraint("Vertical", 16),
    Sketcher.Constraint("Horizontal", 17),
    Sketcher.Constraint("Vertical", 18),
    Sketcher.Constraint("Horizontal", 19),
    Sketcher.Constraint("Vertical", 20),
    Sketcher.Constraint("Horizontal", 21),
    Sketcher.Constraint("Vertical", 22),
    Sketcher.Constraint("Horizontal", 23),
    Sketcher.Constraint("Vertical", 24),
    Sketcher.Constraint("Horizontal", 25),
    Sketcher.Constraint("Vertical", 26),
    Sketcher.Constraint("Horizontal", 27),
    Sketcher.Constraint("Vertical", 28),
    Sketcher.Constraint("Horizontal", 29),
    Sketcher.Constraint("Vertical", 30),
    Sketcher.Constraint("Horizontal", 31),
    Sketcher.Constraint("Horizontal", 1, 2, 8, 2),
    Sketcher.Constraint("Horizontal", 3, 2, 10, 2),
    Sketcher.Constraint("Horizontal", 17, 2, 24, 2),
    Sketcher.Constraint("Horizontal", 19, 2, 26, 2),
    Sketcher.Constraint("Vertical", 7, 2, 12, 2),
    Sketcher.Constraint("Vertical", 6, 2, 13, 2),
    Sketcher.Constraint("Vertical", 3, 2, 16, 2),
    Sketcher.Constraint("Vertical", 2, 2, 17, 2),
    Sketcher.Constraint("Vertical", 15, 2, 20, 2),
    Sketcher.Constraint("Vertical", 14, 2, 21, 2),
    Sketcher.Constraint("Vertical", 11, 2, 24, 2),
    Sketcher.Constraint("Vertical", 10, 2, 25, 2),
    Sketcher.Constraint("Vertical", 23, 2, 28, 2),
    Sketcher.Constraint("Vertical", 22, 2, 29, 2),
    Sketcher.Constraint("Equal", 3, 9),
    Sketcher.Constraint("Equal", 31, 0),
    Sketcher.Constraint("Equal", 27, 4),
    Sketcher.Constraint("Equal", 6, 12),
    Sketcher.Constraint("Equal", 10, 16),
    Sketcher.Constraint("Equal", 14, 20),
    Sketcher.Constraint("Equal", 22, 28),
    Sketcher.Constraint("DistanceX", 5, 1, 5, 2, Q("0.1 in")),
    Sketcher.Constraint("DistanceY", -1, 1, 12, 2, Q("7 in")),
    Sketcher.Constraint("DistanceX", 1, 1, 1, 2, Q("0.06 in")),
    Sketcher.Constraint("DistanceY", -1, 1, 4, 2, Q("7.23 in")),
    Sketcher.Constraint("DistanceY", -1, 1, 20, 2, Q("0.25 in")),
    Sketcher.Constraint("DistanceY", -1, 1, 28, 2, Q("0.02 in")),
    Sketcher.Constraint("DistanceX", 1, 2, 8, 2, Q("0.17 in")),
    Sketcher.Constraint("DistanceY", 16, 2, 0, 2, Q("6.98 in")),
    Sketcher.Constraint("DistanceY", -1, 1, 0, 2, Q("7.095 in")),
    Sketcher.Constraint("DistanceX", 2, 2, 4, 2, Q("0.035 in")),
    Sketcher.Constraint("DistanceX", 0, 2, -1, 1, Q("160.533196 mm")),
])
pad9 = body4.newObject("PartDesign::Pad", "Pad008")
pad9.Profile = sketch11
pad9.Length = Q("0.195 in")

doc.recompute()
